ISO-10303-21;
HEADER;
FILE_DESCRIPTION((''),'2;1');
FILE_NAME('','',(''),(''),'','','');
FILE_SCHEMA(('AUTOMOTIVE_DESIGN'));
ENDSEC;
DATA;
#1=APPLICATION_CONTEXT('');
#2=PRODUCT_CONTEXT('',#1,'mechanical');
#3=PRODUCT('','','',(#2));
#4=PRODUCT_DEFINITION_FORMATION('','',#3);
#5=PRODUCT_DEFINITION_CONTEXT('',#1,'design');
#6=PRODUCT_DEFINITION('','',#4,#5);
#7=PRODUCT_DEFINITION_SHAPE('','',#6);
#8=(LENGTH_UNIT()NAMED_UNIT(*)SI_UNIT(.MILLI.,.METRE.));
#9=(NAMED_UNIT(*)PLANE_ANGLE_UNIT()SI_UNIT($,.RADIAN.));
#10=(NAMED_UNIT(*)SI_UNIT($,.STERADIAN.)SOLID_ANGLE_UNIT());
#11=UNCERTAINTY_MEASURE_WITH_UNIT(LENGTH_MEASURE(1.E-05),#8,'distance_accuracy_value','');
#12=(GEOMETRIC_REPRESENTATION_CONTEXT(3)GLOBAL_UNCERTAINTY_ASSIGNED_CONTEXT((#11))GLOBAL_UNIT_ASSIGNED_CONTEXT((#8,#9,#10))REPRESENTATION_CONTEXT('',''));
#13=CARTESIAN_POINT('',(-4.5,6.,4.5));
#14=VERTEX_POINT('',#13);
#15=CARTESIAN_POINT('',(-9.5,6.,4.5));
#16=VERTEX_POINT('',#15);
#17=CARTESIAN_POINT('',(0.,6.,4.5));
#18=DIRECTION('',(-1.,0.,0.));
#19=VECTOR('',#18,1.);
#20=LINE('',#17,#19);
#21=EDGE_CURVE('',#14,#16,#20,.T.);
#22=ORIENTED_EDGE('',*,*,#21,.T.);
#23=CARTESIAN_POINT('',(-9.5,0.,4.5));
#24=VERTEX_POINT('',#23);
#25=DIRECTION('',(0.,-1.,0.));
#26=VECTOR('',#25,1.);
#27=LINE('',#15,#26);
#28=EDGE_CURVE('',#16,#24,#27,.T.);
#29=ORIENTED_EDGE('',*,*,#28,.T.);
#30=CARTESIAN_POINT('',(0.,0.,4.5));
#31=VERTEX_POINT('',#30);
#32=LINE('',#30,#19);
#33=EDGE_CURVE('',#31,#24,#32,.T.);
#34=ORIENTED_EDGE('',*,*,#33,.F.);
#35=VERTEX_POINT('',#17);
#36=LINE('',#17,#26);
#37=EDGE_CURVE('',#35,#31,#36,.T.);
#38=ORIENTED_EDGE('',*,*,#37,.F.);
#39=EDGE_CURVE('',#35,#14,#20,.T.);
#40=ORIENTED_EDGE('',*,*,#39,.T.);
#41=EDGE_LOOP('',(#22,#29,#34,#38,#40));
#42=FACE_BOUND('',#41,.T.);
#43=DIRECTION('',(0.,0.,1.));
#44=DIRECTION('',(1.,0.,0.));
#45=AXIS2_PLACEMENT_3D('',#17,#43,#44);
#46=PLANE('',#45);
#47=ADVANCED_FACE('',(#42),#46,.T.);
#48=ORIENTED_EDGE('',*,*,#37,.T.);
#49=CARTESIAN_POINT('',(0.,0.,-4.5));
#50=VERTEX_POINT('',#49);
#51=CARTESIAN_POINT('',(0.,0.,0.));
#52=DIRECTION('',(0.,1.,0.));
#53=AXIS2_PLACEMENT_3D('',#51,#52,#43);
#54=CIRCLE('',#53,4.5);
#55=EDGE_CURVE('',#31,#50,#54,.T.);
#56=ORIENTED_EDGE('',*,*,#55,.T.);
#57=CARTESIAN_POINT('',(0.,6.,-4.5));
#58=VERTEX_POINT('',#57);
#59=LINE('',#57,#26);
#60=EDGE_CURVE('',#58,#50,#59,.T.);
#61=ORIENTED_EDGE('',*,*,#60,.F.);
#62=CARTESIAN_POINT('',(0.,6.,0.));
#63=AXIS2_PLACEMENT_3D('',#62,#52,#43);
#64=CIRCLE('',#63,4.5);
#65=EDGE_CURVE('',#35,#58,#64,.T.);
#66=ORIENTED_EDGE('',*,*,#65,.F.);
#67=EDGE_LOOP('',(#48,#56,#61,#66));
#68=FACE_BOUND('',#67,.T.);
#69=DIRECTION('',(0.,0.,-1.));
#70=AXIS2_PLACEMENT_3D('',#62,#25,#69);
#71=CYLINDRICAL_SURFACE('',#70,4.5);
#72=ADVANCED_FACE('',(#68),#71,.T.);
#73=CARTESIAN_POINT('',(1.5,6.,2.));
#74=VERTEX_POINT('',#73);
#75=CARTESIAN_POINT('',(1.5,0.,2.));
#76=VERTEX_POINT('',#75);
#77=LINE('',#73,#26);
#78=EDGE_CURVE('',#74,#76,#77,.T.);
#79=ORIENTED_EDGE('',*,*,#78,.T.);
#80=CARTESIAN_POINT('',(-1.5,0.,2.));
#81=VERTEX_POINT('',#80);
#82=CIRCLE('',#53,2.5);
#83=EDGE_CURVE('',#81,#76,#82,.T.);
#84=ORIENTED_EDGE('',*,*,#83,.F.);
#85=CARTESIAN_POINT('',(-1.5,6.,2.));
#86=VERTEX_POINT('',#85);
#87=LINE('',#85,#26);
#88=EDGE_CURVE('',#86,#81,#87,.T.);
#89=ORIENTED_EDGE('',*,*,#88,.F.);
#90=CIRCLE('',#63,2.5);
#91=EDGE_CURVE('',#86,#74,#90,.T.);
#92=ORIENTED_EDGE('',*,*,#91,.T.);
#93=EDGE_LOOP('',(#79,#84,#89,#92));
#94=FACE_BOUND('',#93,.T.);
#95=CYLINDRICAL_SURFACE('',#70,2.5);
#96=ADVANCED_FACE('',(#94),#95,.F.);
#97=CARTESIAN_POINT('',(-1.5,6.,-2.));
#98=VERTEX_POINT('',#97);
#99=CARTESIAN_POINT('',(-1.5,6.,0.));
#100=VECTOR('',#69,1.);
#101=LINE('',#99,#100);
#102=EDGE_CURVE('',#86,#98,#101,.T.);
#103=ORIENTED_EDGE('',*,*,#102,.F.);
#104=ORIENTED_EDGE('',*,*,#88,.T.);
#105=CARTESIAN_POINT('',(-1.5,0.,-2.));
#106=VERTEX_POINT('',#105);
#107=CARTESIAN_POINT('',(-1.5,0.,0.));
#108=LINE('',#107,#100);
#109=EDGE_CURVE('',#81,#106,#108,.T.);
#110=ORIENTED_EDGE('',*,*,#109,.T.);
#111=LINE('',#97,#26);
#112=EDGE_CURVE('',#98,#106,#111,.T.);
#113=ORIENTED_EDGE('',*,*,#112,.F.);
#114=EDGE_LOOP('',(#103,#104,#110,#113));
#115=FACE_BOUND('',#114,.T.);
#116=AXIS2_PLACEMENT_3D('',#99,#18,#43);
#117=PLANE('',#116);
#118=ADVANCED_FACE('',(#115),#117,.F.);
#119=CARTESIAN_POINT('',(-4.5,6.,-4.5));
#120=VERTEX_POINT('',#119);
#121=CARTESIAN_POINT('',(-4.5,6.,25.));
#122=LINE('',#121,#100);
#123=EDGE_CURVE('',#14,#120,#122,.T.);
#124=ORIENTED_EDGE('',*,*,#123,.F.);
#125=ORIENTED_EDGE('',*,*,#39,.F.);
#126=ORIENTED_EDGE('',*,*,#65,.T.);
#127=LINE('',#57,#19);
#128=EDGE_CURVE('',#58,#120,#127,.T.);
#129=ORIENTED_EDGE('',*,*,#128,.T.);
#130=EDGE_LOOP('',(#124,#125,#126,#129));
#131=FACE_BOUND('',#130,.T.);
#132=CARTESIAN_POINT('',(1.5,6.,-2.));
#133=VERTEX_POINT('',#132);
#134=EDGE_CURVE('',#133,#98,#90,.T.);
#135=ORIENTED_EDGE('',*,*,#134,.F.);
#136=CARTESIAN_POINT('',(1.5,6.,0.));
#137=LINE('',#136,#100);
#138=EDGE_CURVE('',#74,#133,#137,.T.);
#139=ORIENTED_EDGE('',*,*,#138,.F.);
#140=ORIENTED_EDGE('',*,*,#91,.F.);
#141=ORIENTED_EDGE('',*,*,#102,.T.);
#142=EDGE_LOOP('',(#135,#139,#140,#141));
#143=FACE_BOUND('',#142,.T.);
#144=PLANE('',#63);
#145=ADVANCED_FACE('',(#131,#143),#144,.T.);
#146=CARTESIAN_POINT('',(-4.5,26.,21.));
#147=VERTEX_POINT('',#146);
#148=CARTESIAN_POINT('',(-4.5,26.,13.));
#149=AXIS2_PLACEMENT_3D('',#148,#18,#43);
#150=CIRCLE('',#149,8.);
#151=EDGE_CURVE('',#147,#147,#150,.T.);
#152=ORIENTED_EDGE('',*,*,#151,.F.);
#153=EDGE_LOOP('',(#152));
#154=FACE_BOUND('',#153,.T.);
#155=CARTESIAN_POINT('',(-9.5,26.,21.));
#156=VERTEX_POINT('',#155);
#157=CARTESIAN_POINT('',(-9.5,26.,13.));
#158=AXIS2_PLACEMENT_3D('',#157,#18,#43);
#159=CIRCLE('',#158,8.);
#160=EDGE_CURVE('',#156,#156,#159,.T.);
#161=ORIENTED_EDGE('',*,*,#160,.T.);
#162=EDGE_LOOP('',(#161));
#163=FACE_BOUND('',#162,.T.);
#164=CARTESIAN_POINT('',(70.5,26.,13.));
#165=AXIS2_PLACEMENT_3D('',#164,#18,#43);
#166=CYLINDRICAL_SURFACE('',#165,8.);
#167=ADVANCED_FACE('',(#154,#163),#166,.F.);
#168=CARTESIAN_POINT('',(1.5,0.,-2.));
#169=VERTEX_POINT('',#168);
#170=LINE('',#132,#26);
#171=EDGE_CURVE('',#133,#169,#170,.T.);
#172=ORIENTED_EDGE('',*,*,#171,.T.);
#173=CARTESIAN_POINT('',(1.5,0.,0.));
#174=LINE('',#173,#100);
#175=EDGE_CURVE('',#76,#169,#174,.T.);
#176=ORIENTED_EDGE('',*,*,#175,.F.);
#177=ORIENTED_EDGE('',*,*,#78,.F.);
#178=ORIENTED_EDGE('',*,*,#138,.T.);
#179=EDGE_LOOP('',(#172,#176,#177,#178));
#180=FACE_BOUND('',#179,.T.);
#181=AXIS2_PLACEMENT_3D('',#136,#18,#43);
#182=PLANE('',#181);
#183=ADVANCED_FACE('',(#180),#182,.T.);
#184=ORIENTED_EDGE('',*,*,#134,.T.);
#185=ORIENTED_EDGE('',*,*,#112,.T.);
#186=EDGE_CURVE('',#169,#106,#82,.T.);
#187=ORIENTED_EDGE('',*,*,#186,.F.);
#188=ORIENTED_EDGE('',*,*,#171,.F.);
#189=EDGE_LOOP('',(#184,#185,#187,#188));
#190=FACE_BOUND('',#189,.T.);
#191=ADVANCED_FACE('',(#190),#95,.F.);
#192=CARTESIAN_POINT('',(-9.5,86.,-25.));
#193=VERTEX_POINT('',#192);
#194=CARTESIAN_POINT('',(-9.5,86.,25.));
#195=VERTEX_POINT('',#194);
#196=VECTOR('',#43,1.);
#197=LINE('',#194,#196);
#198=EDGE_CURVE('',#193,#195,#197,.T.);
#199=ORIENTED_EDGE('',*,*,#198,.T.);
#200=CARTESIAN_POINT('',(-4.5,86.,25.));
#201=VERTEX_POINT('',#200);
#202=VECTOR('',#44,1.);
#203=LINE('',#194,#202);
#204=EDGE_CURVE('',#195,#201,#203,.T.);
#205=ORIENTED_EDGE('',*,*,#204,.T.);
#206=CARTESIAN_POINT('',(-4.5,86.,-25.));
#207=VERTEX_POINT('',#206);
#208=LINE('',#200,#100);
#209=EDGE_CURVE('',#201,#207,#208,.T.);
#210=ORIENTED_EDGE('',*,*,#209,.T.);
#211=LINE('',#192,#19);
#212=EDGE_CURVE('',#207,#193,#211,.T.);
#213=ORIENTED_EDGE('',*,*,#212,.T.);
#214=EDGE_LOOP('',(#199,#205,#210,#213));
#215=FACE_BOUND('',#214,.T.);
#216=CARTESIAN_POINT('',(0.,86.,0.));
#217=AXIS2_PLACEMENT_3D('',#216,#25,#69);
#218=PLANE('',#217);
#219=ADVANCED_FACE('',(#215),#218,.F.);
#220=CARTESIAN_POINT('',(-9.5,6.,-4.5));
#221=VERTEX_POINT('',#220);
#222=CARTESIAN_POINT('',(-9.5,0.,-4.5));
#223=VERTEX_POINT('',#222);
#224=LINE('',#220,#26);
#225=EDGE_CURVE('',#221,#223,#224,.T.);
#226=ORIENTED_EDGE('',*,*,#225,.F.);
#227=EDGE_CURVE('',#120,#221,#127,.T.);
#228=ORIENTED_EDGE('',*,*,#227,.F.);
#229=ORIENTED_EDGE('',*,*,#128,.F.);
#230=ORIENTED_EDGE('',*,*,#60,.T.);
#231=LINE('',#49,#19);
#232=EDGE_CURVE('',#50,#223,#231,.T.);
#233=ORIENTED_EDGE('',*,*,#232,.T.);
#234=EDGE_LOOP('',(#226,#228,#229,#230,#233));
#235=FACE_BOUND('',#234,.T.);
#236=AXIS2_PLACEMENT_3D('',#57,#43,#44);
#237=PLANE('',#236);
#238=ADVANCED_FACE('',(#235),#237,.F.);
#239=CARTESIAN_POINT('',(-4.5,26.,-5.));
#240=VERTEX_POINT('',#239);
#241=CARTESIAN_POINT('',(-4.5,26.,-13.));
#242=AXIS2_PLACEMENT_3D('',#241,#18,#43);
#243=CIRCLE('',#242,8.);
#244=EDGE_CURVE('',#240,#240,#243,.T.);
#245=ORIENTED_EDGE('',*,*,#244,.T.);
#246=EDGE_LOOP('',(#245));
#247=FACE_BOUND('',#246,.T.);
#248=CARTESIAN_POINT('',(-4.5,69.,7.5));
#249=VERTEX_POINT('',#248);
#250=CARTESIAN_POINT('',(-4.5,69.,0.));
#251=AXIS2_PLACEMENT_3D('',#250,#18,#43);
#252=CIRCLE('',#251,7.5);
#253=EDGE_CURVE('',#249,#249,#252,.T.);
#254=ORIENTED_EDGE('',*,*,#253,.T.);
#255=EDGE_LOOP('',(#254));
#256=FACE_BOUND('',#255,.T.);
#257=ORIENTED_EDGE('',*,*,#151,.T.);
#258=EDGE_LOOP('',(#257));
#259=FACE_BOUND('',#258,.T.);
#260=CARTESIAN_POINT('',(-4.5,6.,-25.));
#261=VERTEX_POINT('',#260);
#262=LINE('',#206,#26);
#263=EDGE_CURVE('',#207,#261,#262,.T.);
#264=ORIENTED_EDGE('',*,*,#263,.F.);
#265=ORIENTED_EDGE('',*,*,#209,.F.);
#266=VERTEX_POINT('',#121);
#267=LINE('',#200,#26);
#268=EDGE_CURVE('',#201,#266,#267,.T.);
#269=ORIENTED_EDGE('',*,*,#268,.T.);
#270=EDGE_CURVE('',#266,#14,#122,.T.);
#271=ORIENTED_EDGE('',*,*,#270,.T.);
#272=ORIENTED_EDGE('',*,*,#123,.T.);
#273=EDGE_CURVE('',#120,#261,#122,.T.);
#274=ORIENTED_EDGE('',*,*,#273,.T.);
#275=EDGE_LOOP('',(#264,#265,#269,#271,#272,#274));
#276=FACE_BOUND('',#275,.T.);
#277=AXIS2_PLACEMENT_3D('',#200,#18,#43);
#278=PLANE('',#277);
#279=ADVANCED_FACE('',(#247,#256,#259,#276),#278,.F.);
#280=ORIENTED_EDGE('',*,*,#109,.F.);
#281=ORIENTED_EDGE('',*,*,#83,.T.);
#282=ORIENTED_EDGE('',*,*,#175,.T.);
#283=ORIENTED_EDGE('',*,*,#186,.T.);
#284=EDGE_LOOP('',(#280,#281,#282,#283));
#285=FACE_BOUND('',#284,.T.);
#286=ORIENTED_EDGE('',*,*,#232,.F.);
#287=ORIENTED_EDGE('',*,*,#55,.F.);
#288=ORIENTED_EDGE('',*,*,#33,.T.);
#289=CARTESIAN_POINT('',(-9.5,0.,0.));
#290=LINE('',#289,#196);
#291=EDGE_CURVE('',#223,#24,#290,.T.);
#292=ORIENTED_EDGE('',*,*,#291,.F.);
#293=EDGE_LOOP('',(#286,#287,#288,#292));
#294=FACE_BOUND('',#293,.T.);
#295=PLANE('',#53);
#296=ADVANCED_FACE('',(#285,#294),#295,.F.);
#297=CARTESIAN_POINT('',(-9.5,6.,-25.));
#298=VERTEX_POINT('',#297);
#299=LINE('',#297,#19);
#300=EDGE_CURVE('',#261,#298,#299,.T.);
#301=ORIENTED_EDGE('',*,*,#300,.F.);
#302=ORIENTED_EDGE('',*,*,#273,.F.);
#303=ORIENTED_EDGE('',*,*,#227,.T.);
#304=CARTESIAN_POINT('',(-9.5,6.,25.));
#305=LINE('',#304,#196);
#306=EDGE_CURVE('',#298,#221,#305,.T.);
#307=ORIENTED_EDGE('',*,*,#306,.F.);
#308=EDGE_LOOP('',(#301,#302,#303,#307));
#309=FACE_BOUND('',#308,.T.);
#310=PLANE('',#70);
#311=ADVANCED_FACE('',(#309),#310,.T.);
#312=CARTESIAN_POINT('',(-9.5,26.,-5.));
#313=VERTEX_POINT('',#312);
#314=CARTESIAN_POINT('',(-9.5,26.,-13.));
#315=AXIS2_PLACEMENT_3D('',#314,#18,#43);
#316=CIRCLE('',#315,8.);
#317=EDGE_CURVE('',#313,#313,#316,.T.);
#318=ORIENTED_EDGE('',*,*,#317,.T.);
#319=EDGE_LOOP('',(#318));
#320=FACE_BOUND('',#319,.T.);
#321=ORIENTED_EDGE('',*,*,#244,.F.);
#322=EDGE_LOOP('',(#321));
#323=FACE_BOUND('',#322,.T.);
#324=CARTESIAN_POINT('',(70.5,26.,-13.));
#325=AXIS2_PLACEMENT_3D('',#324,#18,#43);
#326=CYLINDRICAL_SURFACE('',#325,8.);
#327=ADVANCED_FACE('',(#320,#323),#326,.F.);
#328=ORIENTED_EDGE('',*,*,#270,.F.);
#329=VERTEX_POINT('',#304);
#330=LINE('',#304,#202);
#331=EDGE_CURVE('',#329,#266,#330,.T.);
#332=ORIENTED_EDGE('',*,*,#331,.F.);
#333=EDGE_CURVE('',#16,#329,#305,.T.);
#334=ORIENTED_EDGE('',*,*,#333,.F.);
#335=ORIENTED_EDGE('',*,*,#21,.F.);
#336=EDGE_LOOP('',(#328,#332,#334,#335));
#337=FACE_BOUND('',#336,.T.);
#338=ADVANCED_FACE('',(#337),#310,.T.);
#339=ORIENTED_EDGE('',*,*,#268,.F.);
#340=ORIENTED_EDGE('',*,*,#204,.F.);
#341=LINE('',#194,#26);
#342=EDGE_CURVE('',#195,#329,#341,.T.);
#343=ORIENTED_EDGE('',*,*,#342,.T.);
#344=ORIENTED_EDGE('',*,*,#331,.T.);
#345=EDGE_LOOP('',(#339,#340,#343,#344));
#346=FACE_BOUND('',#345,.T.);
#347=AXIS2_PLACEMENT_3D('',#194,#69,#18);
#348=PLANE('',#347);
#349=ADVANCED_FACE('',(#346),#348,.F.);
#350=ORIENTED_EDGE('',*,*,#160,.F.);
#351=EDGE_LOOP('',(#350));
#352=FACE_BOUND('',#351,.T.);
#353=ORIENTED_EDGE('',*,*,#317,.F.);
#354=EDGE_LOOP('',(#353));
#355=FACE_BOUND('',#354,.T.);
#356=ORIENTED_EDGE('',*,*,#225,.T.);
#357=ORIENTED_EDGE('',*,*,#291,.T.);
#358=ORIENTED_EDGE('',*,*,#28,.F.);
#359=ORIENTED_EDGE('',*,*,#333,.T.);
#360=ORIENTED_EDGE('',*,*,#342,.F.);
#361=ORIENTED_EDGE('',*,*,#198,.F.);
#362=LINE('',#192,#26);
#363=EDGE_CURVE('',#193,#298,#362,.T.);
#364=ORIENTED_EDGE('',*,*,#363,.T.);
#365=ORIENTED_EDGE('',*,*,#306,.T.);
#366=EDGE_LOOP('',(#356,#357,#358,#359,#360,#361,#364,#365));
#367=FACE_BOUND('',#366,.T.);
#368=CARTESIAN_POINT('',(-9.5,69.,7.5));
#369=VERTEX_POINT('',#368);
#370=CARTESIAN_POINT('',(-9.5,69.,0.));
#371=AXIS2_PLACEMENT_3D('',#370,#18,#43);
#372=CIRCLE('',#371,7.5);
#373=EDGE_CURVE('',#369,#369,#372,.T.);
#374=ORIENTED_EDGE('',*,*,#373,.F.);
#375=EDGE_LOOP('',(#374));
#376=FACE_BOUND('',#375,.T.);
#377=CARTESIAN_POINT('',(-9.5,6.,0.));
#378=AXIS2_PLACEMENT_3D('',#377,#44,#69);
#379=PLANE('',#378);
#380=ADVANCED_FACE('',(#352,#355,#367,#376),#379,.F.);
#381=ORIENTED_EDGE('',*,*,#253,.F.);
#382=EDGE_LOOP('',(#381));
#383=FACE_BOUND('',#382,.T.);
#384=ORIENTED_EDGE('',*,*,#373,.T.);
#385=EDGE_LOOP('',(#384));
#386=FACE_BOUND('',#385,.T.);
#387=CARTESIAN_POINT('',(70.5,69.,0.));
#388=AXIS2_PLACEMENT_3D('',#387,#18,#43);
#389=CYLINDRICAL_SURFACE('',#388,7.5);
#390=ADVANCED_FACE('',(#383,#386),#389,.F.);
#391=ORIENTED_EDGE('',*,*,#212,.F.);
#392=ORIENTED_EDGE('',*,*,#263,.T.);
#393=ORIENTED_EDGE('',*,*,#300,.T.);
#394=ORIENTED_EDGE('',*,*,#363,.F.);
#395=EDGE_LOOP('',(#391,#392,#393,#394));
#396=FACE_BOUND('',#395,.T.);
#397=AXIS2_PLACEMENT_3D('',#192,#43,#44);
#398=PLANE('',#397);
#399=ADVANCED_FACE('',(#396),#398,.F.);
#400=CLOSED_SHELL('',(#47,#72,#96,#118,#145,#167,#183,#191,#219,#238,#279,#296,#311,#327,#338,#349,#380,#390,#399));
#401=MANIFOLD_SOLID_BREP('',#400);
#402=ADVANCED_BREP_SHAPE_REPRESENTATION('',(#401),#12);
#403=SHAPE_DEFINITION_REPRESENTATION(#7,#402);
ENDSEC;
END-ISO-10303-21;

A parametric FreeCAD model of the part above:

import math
import FreeCAD as App
import Part
import Sketcher

doc = App.newDocument("Part")
params = doc.addObject("Spreadsheet::Sheet", "Params")
for row, (alias, value) in enumerate([
    ("sketch1_radius", "4.5 mm"),
    ("sketch1_radius2", "2.5 mm"),
    ("sketch1_height", "4 mm"),
    ("sketch1_width", "9.5 mm"),
    ("pad1_length", "6 mm"),
    ("sketch2_width", "5 mm"),
    ("sketch2_height", "50 mm"),
    ("pad2_length", "80 mm"),
    ("sketch3_diameter", "16 mm"),
    ("sketch3_diameter2", "15 mm"),
    ("pocket1_length", "80 mm"),
], start=1):
    params.set(f"A{row}", alias)
    params.set(f"B{row}", "=" + value)
    params.setAlias(f"B{row}", alias)

body = doc.addObject("PartDesign::Body", "Body")

sketch1 = body.newObject("Sketcher::SketchObject", "Sketch")
sketch1.AttachmentSupport = (doc.getObject("XZ_Plane"), [""])
sketch1.MapMode = "FlatFace"
sketch1.addGeometry([
    Part.LineSegment(App.Vector(-9.5, 4.5, 0), App.Vector(0, 4.5, 0)),
    Part.ArcOfCircle(Part.Circle(App.Vector(0, 0, 0), App.Vector(0, 0, 1), 4.5), math.radians(0), math.radians(90)),
    Part.ArcOfCircle(Part.Circle(App.Vector(0, 0, 0), App.Vector(0, 0, 1), 4.5), math.radians(-90), math.radians(0)),
    Part.LineSegment(App.Vector(0, -4.5, 0), App.Vector(-9.5, -4.5, 0)),
    Part.LineSegment(App.Vector(-9.5, -4.5, 0), App.Vector(-9.5, 4.5, 0)),
    Part.LineSegment(App.Vector(1.5, -2, 0), App.Vector(1.5, 2, 0)),
    Part.ArcOfCircle(Part.Circle(App.Vector(0, 0, 0), App.Vector(0, 0, 1), 2.5), math.radians(53), math.radians(90)),
    Part.ArcOfCircle(Part.Circle(App.Vector(0, 0, 0), App.Vector(0, 0, 1), 2.5), math.radians(90), math.radians(127)),
    Part.LineSegment(App.Vector(-1.5, 2, 0), App.Vector(-1.5, -2, 0)),
    Part.ArcOfCircle(Part.Circle(App.Vector(0, 0, 0), App.Vector(0, 0, 1), 2.5), math.radians(-127), math.radians(-90)),
    Part.ArcOfCircle(Part.Circle(App.Vector(0, 0, 0), App.Vector(0, 0, 1), 2.5), math.radians(-90), math.radians(-53)),
], False)
sketch1.addConstraint([
    Sketcher.Constraint("Tangent", 0, 2, 1, 2),
    Sketcher.Constraint("Tangent", 1, 1, 2, 2),
    Sketcher.Constraint("Tangent", 2, 1, 3, 1),
    Sketcher.Constraint("Coincident", 3, 2, 4, 1),
    Sketcher.Constraint("Coincident", 4, 2, 0, 1),
    Sketcher.Constraint("Coincident", 5, 2, 6, 1),
    Sketcher.Constraint("Tangent", 6, 2, 7, 1),
    Sketcher.Constraint("Coincident", 7, 2, 8, 1),
    Sketcher.Constraint("Coincident", 8, 2, 9, 1),
    Sketcher.Constraint("Tangent", 9, 2, 10, 1),
    Sketcher.Constraint("Coincident", 10, 2, 5, 1),
    Sketcher.Constraint("Horizontal", 0),
    Sketcher.Constraint("Horizontal", 3),
    Sketcher.Constraint("Vertical", 4),
    Sketcher.Constraint("Vertical", 5),
    Sketcher.Constraint("Vertical", 8),
    Sketcher.Constraint("Coincident", 1, 3, -1, 1),
    Sketcher.Constraint("Coincident", 6, 3, -1, 1),
    Sketcher.Constraint("Coincident", 9, 3, -1, 1),
    Sketcher.Constraint("Equal", 1, 2),
    Sketcher.Constraint("Equal", 6, 7),
    Sketcher.Constraint("Equal", 7, 9),
    Sketcher.Constraint("Equal", 9, 10),
    Sketcher.Constraint("PointOnObject", 1, 1, -1),
    Sketcher.Constraint("PointOnObject", 6, 2, -2),
    Sketcher.Constraint("PointOnObject", 9, 2, -2),
    Sketcher.Constraint("Horizontal", 5, 2, 7, 2),
    Sketcher.Constraint("Radius", 1, 4.5),
    Sketcher.Constraint("Radius", 6, 2.5),
    Sketcher.Constraint("DistanceY", 5, 1, 5, 2, 4.0),
    Sketcher.Constraint("DistanceX", 0, 1, 0, 2, 9.5),
])
sketch1.setExpression("Constraints[27]", "Params.sketch1_radius")
sketch1.setExpression("Constraints[28]", "Params.sketch1_radius2")
sketch1.setExpression("Constraints[29]", "Params.sketch1_height")
sketch1.setExpression("Constraints[30]", "Params.sketch1_width")
pad1 = body.newObject("PartDesign::Pad", "Pad")
pad1.Profile = sketch1
pad1.setExpression("Length", "Params.pad1_length")
pad1.Reversed = True

sketch2 = body.newObject("Sketcher::SketchObject", "Sketch001")
sketch2.AttachmentSupport = (doc.getObject("XZ_Plane"), [""])
sketch2.MapMode = "FlatFace"
sketch2.AttachmentOffset = App.Placement(App.Vector(0, 0, -6), App.Rotation())
sketch2.addGeometry([
    Part.LineSegment(App.Vector(-10, -25, 0), App.Vector(-10, 25, 0)),
    Part.LineSegment(App.Vector(-10, 25, 0), App.Vector(-4, 25, 0)),
    Part.LineSegment(App.Vector(-4, 25, 0), App.Vector(-4, -25, 0)),
    Part.LineSegment(App.Vector(-4, -25, 0), App.Vector(-10, -25, 0)),
], False)
sketch2.addConstraint([
    Sketcher.Constraint("Coincident", 0, 2, 1, 1),
    Sketcher.Constraint("Coincident", 1, 2, 2, 1),
    Sketcher.Constraint("Coincident", 2, 2, 3, 1),
    Sketcher.Constraint("Coincident", 3, 2, 0, 1),
    Sketcher.Constraint("Vertical", 0),
    Sketcher.Constraint("Horizontal", 1),
    Sketcher.Constraint("Vertical", 2),
    Sketcher.Constraint("Horizontal", 3),
    Sketcher.Constraint("DistanceX", 1, 1, 1, 2, 5.0),
    Sketcher.Constraint("DistanceY", 0, 1, 0, 2, 50.0),
    Sketcher.Constraint("DistanceY", -1, 1, 0, 2, 25.0),
    Sketcher.Constraint("DistanceX", 0, 2, -1, 1, 9.5),
])
sketch2.setExpression("Constraints[8]", "Params.sketch2_width")
sketch2.setExpression("Constraints[9]", "Params.sketch2_height")
pad2 = body.newObject("PartDesign::Pad", "Pad001")
pad2.Profile = sketch2
pad2.setExpression("Length", "Params.pad2_length")
pad2.Reversed = True

sketch3 = body.newObject("Sketcher::SketchObject", "Sketch002")
sketch3.AttachmentSupport = (doc.getObject("YZ_Plane"), [""])
sketch3.MapMode = "FlatFace"
sketch3.AttachmentOffset = App.Placement(App.Vector(0, 0, -9.5), App.Rotation())
sketch3.addGeometry([
    Part.Circle(App.Vector(26, -13, 0), App.Vector(0, 0, 1), 8),
    Part.Circle(App.Vector(26, 13, 0), App.Vector(0, 0, 1), 8),
    Part.Circle(App.Vector(69, 0, 0), App.Vector(0, 0, 1), 8),
], False)
sketch3.addConstraint([
    Sketcher.Constraint("Equal", 0, 1),
    Sketcher.Constraint("Symmetric", 0, 3, 1, 3, -1),
    Sketcher.Constraint("PointOnObject", 2, 3, -1),
    Sketcher.Constraint("Diameter", 0, 16.0),
    Sketcher.Constraint("Diameter", 2, 15.0),
    Sketcher.Constraint("DistanceX", -1, 1, 0, 3, 26.0),
    Sketcher.Constraint("DistanceY", 0, 3, -1, 1, 13.0),
    Sketcher.Constraint("DistanceX", -1, 1, 2, 3, 69.0),
])
sketch3.setExpression("Constraints[3]", "Params.sketch3_diameter")
sketch3.setExpression("Constraints[4]", "Params.sketch3_diameter2")
pocket1 = body.newObject("PartDesign::Pocket", "Pocket")
pocket1.Profile = sketch3
pocket1.setExpression("Length", "Params.pocket1_length")
pocket1.Reversed = True

doc.recompute()
